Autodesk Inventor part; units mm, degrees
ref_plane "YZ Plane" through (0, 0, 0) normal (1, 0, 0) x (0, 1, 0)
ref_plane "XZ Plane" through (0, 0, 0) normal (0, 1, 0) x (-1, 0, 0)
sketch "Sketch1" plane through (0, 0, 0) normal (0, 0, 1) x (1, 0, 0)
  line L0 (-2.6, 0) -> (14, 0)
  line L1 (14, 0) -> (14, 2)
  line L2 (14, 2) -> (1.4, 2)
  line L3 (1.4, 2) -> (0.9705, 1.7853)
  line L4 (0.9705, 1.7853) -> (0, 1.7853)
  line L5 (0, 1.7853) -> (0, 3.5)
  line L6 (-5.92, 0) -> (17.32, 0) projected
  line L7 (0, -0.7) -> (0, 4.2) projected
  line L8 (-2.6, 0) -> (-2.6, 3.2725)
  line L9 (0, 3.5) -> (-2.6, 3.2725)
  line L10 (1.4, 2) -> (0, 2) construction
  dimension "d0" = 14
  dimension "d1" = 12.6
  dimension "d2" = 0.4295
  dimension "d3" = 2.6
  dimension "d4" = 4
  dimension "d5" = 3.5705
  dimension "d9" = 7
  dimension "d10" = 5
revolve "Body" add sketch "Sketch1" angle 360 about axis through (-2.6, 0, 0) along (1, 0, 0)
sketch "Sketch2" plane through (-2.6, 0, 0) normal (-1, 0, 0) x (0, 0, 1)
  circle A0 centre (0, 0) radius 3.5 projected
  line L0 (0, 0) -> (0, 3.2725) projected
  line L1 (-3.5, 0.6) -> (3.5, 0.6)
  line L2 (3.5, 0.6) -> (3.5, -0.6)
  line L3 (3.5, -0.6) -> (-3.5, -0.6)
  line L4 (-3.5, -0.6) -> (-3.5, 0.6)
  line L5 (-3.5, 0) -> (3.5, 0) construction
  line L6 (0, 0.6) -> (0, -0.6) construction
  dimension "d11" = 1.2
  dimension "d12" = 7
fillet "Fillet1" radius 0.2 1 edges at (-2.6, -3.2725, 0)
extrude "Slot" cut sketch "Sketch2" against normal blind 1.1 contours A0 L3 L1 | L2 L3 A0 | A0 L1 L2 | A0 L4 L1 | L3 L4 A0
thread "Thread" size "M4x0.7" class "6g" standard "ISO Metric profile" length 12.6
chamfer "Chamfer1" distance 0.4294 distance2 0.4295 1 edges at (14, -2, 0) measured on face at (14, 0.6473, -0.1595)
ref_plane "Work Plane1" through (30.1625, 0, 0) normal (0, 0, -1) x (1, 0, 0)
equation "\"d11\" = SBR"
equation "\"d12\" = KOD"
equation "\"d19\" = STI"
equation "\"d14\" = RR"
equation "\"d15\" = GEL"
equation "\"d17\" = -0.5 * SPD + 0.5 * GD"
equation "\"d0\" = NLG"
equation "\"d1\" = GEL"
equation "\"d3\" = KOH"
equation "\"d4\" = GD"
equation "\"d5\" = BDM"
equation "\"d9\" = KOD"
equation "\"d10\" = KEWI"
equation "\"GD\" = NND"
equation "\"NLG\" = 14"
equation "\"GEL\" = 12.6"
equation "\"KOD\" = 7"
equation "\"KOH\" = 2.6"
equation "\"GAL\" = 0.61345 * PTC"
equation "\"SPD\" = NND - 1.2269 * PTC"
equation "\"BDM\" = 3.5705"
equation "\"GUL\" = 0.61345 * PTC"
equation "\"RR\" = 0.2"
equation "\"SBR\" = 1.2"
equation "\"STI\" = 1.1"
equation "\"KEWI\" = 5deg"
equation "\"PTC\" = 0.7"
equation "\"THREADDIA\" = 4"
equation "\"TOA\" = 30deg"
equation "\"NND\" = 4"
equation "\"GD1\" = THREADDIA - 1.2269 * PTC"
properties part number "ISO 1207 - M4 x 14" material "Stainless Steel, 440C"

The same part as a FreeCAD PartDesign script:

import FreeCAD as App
import Part
import Sketcher
Q = App.Units.Quantity


def edges_at(feature, points):
    """Names of the edges that pass closest to the given points."""
    edges = feature.Shape.Edges
    near = lambda p: min(range(len(edges)), key=lambda i: edges[i].distToShape(Part.Vertex(*p))[0])
    return sorted({f"Edge{near(p) + 1}" for p in points})

doc = App.newDocument("Part")
params = doc.addObject("Spreadsheet::Sheet", "Params")
for row, (alias, value) in enumerate([
    ("sketch1_width", "12.6 mm"),
    ("sketch1_height", "2 mm"),
    ("revolution_angle", "360 deg"),
    ("fillet_radius", "0.2 mm"),
    ("sketch2_height", "7 mm"),
    ("sketch2_width", "1.2 mm"),
    ("pocket1_length", "1.1 mm"),
    ("chamfer_size", "0.4294 mm"),
    ("chamfer_size2", "0.4295 mm"),
], start=1):
    params.set(f"A{row}", alias)
    params.set(f"B{row}", "=" + value)
    params.setAlias(f"B{row}", alias)

body = doc.addObject("PartDesign::Body", "Body")

# Sketch on XY plane
sketch1 = body.newObject("Sketcher::SketchObject", "Sketch")
sketch1.AttachmentSupport = (doc.getObject("XY_Plane"), [""])
sketch1.MapMode = "FlatFace"
sketch1.addGeometry(Part.LineSegment(App.Vector(-2.6, 3.2725, 0), App.Vector(-2.6, 0, 0)), False)
sketch1.addGeometry(Part.LineSegment(App.Vector(-2.6, 0, 0), App.Vector(14, 0, 0)), False)
sketch1.addGeometry(Part.LineSegment(App.Vector(14, 0, 0), App.Vector(14, 2, 0)), False)
sketch1.addGeometry(Part.LineSegment(App.Vector(14, 2, 0), App.Vector(1.4, 2, 0)), False)
sketch1.addGeometry(Part.LineSegment(App.Vector(1.4, 2, 0), App.Vector(0.9705, 1.7853, 0)), False)
sketch1.addGeometry(Part.LineSegment(App.Vector(0.9705, 1.7853, 0), App.Vector(0, 1.7853, 0)), False)
sketch1.addGeometry(Part.LineSegment(App.Vector(0, 1.7853, 0), App.Vector(0, 3.5, 0)), False)
sketch1.addGeometry(Part.LineSegment(App.Vector(0, 3.5, 0), App.Vector(-2.6, 3.2725, 0)), False)
sketch1.addConstraint(Sketcher.Constraint("Coincident", 0, 2, 1, 1))
sketch1.addConstraint(Sketcher.Constraint("Coincident", 1, 2, 2, 1))
sketch1.addConstraint(Sketcher.Constraint("Coincident", 2, 2, 3, 1))
sketch1.addConstraint(Sketcher.Constraint("Coincident", 3, 2, 4, 1))
sketch1.addConstraint(Sketcher.Constraint("Coincident", 4, 2, 5, 1))
sketch1.addConstraint(Sketcher.Constraint("Coincident", 5, 2, 6, 1))
sketch1.addConstraint(Sketcher.Constraint("Coincident", 6, 2, 7, 1))
sketch1.addConstraint(Sketcher.Constraint("Coincident", 7, 2, 0, 1))
sketch1.addConstraint(Sketcher.Constraint("Vertical", 0))
sketch1.addConstraint(Sketcher.Constraint("Horizontal", 1))
sketch1.addConstraint(Sketcher.Constraint("Vertical", 2))
sketch1.addConstraint(Sketcher.Constraint("Horizontal", 3))
sketch1.addConstraint(Sketcher.Constraint("Horizontal", 5))
sketch1.addConstraint(Sketcher.Constraint("Vertical", 6))
sketch1.addConstraint(Sketcher.Constraint("PointOnObject", 0, 2, -1))
sketch1.addConstraint(Sketcher.Constraint("PointOnObject", 5, 2, -2))
sketch1.addConstraint(Sketcher.Constraint("DistanceX", 3, 2, 3, 1, Q("12.6 mm")))
sketch1.addConstraint(Sketcher.Constraint("DistanceX", -1, 1, 1, 2, Q("14 mm")))
sketch1.addConstraint(Sketcher.Constraint("DistanceX", 0, 2, 3, 2, Q("4 mm")))
sketch1.addConstraint(Sketcher.Constraint("DistanceY", 2, 1, 2, 2, Q("2 mm")))
sketch1.addConstraint(Sketcher.Constraint("Angle", 7, Q("-174.9994 deg")))
sketch1.addConstraint(Sketcher.Constraint("DistanceY", -1, 1, 6, 2, Q("3.5 mm")))
sketch1.addConstraint(Sketcher.Constraint("Angle", 4, Q("-153.4403 deg")))
sketch1.addConstraint(Sketcher.Constraint("DistanceX", 4, 2, 3, 2, Q("0.4295 mm")))
sketch1.setExpression("Constraints[16]", "Params.sketch1_width")
sketch1.setExpression("Constraints[19]", "Params.sketch1_height")
revolution = body.newObject("PartDesign::Revolution", "Revolution")
revolution.Profile = sketch1
revolution.ReferenceAxis = (sketch1, ["H_Axis"])
revolution.setExpression("Angle", "Params.revolution_angle")
doc.recompute()

fillet = body.newObject("PartDesign::Fillet", "Fillet")
fillet.Base = (revolution, edges_at(revolution, [(-2.6, -3.272, 0)]))
fillet.setExpression("Radius", "Params.fillet_radius")

# Sketch on YZ plane
sketch2 = body.newObject("Sketcher::SketchObject", "Sketch001")
sketch2.AttachmentSupport = (doc.getObject("YZ_Plane"), [""])
sketch2.MapMode = "FlatFace"
sketch2.AttachmentOffset = App.Placement(App.Vector(0, 0, -2.6), App.Rotation())
sketch2.addGeometry(Part.LineSegment(App.Vector(-0.6, 3.5, 0), App.Vector(0.6, 3.5, 0)), False)
sketch2.addGeometry(Part.LineSegment(App.Vector(0.6, 3.5, 0), App.Vector(0.6, -3.5, 0)), False)
sketch2.addGeometry(Part.LineSegment(App.Vector(0.6, -3.5, 0), App.Vector(-0.6, -3.5, 0)), False)
sketch2.addGeometry(Part.LineSegment(App.Vector(-0.6, -3.5, 0), App.Vector(-0.6, 3.5, 0)), False)
sketch2.addConstraint(Sketcher.Constraint("Coincident", 0, 2, 1, 1))
sketch2.addConstraint(Sketcher.Constraint("Coincident", 1, 2, 2, 1))
sketch2.addConstraint(Sketcher.Constraint("Coincident", 2, 2, 3, 1))
sketch2.addConstraint(Sketcher.Constraint("Coincident", 3, 2, 0, 1))
sketch2.addConstraint(Sketcher.Constraint("Horizontal", 0))
sketch2.addConstraint(Sketcher.Constraint("Vertical", 1))
sketch2.addConstraint(Sketcher.Constraint("Horizontal", 2))
sketch2.addConstraint(Sketcher.Constraint("Vertical", 3))
sketch2.addConstraint(Sketcher.Constraint("Symmetric", 0, 2, 2, 2, -1, 1))
sketch2.addConstraint(Sketcher.Constraint("DistanceY", 1, 2, 1, 1, Q("7 mm")))
sketch2.addConstraint(Sketcher.Constraint("DistanceX", 0, 1, 0, 2, Q("1.2 mm")))
sketch2.setExpression("Constraints[9]", "Params.sketch2_height")
sketch2.setExpression("Constraints[10]", "Params.sketch2_width")
pocket1 = body.newObject("PartDesign::Pocket", "Pocket")
pocket1.Profile = sketch2
pocket1.setExpression("Length", "Params.pocket1_length")
pocket1.Reversed = True
doc.recompute()

chamfer = body.newObject("PartDesign::Chamfer", "Chamfer")
chamfer.Base = (pocket1, edges_at(pocket1, [(14, -2, 0)]))
chamfer.ChamferType = "Two distances"
chamfer.setExpression("Size", "Params.chamfer_size")
chamfer.setExpression("Size2", "Params.chamfer_size2")

doc.recompute()
